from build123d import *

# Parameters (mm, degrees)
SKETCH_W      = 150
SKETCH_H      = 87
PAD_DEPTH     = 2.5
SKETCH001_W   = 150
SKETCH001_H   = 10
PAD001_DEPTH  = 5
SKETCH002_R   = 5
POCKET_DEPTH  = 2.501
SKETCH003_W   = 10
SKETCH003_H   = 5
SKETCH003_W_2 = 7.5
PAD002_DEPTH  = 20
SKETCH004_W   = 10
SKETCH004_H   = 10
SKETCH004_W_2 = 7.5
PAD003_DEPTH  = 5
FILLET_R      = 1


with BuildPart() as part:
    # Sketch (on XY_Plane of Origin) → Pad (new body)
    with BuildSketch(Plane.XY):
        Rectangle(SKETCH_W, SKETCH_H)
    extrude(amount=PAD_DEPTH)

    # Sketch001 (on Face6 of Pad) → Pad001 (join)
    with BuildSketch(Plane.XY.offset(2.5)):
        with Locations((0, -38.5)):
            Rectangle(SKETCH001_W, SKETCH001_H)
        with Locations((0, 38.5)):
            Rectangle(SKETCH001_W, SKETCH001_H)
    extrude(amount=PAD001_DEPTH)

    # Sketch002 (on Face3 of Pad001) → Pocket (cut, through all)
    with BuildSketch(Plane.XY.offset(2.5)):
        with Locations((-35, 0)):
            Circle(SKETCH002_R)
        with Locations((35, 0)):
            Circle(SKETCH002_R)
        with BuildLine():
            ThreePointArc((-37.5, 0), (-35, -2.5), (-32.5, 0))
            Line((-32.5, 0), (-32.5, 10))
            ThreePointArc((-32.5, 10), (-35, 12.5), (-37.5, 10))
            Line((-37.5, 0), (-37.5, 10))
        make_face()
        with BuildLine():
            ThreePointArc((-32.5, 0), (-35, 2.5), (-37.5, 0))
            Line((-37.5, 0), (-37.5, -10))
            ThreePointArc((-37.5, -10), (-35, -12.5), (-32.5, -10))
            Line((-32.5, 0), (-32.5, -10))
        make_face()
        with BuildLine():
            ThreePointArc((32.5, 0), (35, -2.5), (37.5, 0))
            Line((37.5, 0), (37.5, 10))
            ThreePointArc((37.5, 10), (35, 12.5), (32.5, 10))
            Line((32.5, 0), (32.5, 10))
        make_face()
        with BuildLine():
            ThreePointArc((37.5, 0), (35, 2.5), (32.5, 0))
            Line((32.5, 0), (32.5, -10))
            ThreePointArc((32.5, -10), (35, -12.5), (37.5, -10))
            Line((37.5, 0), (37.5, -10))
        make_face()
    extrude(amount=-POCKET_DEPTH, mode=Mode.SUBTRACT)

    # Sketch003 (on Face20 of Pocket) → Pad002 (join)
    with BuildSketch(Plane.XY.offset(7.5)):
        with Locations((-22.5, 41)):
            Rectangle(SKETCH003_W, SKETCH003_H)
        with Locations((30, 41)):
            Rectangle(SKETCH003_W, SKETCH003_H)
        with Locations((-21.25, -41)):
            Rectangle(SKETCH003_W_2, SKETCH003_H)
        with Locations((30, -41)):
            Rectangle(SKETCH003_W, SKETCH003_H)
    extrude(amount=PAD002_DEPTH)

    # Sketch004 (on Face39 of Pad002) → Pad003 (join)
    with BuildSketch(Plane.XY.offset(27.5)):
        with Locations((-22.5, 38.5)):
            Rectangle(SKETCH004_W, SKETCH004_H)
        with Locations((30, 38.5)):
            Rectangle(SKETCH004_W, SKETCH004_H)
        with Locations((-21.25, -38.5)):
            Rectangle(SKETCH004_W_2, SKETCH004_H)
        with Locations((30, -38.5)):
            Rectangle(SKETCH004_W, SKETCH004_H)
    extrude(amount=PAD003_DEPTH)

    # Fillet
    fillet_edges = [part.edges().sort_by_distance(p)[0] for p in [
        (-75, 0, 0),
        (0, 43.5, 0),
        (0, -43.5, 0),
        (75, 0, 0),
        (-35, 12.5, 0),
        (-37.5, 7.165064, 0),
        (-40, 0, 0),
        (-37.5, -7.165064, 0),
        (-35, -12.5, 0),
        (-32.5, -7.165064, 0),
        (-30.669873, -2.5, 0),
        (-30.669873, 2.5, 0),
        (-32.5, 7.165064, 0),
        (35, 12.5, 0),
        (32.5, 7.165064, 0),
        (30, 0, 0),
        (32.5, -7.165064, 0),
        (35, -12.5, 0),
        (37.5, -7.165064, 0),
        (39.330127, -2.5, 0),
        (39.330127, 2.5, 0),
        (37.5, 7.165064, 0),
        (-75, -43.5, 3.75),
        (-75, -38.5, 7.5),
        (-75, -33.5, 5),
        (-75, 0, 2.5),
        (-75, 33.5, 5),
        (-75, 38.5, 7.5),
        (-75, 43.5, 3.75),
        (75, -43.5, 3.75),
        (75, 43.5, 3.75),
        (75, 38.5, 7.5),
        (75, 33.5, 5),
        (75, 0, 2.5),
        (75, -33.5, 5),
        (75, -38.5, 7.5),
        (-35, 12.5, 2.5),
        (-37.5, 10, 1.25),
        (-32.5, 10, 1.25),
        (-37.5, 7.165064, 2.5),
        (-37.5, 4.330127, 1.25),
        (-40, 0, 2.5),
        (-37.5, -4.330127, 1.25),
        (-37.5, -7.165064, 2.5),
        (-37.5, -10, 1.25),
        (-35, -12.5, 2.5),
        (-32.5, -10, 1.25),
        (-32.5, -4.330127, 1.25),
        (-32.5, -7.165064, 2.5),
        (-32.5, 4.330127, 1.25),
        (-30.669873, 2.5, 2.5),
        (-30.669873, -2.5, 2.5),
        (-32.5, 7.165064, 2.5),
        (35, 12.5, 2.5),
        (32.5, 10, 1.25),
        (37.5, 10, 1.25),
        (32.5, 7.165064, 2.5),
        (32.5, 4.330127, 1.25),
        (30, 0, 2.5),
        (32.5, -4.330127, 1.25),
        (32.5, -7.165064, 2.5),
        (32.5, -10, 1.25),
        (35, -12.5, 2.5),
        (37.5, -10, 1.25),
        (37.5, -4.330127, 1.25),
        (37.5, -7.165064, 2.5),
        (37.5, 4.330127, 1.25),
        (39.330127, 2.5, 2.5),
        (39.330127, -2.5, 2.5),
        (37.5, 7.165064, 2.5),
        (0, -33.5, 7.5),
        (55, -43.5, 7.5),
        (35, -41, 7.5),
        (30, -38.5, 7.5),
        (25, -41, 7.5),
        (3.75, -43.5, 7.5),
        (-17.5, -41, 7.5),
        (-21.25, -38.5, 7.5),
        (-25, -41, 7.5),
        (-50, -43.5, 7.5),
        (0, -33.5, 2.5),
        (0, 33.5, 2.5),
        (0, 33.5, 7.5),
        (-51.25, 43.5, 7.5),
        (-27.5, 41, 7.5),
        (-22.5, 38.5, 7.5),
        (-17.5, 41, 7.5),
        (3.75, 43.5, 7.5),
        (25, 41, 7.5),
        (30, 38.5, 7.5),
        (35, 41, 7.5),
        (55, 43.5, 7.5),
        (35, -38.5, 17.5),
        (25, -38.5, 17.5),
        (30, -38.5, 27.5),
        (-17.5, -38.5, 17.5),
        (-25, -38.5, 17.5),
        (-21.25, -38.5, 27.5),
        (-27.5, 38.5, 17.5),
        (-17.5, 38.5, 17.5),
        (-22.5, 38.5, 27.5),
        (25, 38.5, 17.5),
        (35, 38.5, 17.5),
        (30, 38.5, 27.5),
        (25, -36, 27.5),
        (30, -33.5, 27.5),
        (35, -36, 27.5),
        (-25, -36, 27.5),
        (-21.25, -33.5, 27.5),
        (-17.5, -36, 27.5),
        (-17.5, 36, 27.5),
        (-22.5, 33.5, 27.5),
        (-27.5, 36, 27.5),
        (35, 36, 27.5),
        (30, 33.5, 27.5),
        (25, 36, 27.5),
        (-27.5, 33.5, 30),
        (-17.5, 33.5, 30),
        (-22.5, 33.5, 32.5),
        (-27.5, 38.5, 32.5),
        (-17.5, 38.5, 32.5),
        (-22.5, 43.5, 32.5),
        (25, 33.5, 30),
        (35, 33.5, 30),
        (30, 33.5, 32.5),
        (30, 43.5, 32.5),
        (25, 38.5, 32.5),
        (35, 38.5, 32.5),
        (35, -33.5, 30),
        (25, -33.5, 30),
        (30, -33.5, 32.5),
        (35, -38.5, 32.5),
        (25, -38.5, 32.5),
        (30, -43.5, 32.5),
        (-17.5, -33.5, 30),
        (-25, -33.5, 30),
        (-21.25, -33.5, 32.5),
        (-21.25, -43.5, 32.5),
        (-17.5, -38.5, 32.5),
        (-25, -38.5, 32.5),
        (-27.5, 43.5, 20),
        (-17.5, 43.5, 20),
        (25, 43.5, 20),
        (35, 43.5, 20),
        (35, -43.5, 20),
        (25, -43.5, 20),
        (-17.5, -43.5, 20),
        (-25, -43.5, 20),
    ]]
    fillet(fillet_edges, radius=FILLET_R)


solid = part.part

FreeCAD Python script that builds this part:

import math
import FreeCAD as App
import Part
import Sketcher
from FreeCAD import Vector
Q = App.Units.Quantity


def add_polygon(sketch, points):
    """Adds a closed chain of lines whose ends are joined by coincident constraints."""
    first, n = sketch.GeometryCount, len(points)
    for a, b in zip(points, points[1:] + points[:1]):
        sketch.addGeometry(Part.LineSegment(App.Vector(*a, 0), App.Vector(*b, 0)), False)
    for i in range(n):
        sketch.addConstraint(Sketcher.Constraint("Coincident", first + i, 2, first + (i + 1) % n, 1))

doc = App.newDocument("Part")
params = doc.addObject("Spreadsheet::Sheet", "Params")
for row, (alias, value) in enumerate([
    ("sketch1_width", "150 mm"),
    ("sketch1_height", "87 mm"),
    ("pad1_length", "2.5 mm"),
    ("sketch2_width", "150 mm"),
    ("sketch2_height", "10 mm"),
    ("pad2_length", "5 mm"),
    ("sketch3_radius", "5 mm"),
    ("sketch3_radius2", "2.5 mm"),
    ("sketch4_width", "10 mm"),
    ("sketch4_height", "5 mm"),
    ("sketch4_width2", "7.5 mm"),
    ("pad3_length", "20 mm"),
    ("sketch5_width", "10 mm"),
    ("sketch5_width2", "7.5 mm"),
    ("pad4_length", "5 mm"),
    ("fillet_radius", "1 mm"),
], start=1):
    params.set(f"A{row}", alias)
    params.set(f"B{row}", "=" + value)
    params.setAlias(f"B{row}", alias)

body = doc.addObject("PartDesign::Body", "Body")

# Sketch on XY plane
sketch1 = body.newObject("Sketcher::SketchObject", "Sketch")
sketch1.AttachmentSupport = (doc.getObject("XY_Plane"), [""])
sketch1.MapMode = "FlatFace"
add_polygon(sketch1, [(-75, 43.5), (-75, -43.5), (75, -43.5), (75, 43.5)])  # lines 0-3
sketch1.addConstraint([
    Sketcher.Constraint("Vertical", 0),
    Sketcher.Constraint("Horizontal", 1),
    Sketcher.Constraint("Vertical", 2),
    Sketcher.Constraint("Horizontal", 3),
    Sketcher.Constraint("Symmetric", 0, 2, 2, 2, -1, 1),
    Sketcher.Constraint("DistanceX", 1, 1, 1, 2, Q("150 mm")),
    Sketcher.Constraint("DistanceY", 0, 2, 0, 1, Q("87 mm")),
])
sketch1.setExpression("Constraints[9]", "Params.sketch1_width")
sketch1.setExpression("Constraints[10]", "Params.sketch1_height")
pad1 = body.newObject("PartDesign::Pad", "Pad")
pad1.Profile = sketch1
pad1.setExpression("Length", "Params.pad1_length")

# Sketch on XY plane
sketch2 = body.newObject("Sketcher::SketchObject", "Sketch001")
sketch2.AttachmentSupport = (doc.getObject("XY_Plane"), [""])
sketch2.MapMode = "FlatFace"
sketch2.AttachmentOffset = App.Placement(Vector(0, 0, 2.5), App.Rotation())
add_polygon(sketch2, [(-75, -33.5), (-75, -43.5), (75, -43.5), (75, -33.5)])  # lines 0-3
add_polygon(sketch2, [(-75, 43.5), (-75, 33.5), (75, 33.5), (75, 43.5)])  # lines 4-7
sketch2.addConstraint([
    Sketcher.Constraint("Vertical", 0),
    Sketcher.Constraint("Horizontal", 1),
    Sketcher.Constraint("Vertical", 2),
    Sketcher.Constraint("Horizontal", 3),
    Sketcher.Constraint("Vertical", 4),
    Sketcher.Constraint("Horizontal", 5),
    Sketcher.Constraint("Vertical", 6),
    Sketcher.Constraint("Horizontal", 7),
    Sketcher.Constraint("Symmetric", 2, 2, 4, 2, -1, 1),
    Sketcher.Constraint("Symmetric", 0, 2, 6, 2, -1, 1),
    Sketcher.Constraint("Vertical", 3, 2, 4, 2),
    Sketcher.Constraint("DistanceX", 1, 1, 1, 2, Q("150 mm")),
    Sketcher.Constraint("DistanceY", 0, 2, 0, 1, Q("10 mm")),
    Sketcher.Constraint("DistanceY", 3, 2, 4, 2, Q("67 mm")),
])
sketch2.setExpression("Constraints[19]", "Params.sketch2_width")
sketch2.setExpression("Constraints[20]", "Params.sketch2_height")
pad2 = body.newObject("PartDesign::Pad", "Pad001")
pad2.Profile = sketch2
pad2.setExpression("Length", "Params.pad2_length")

# Sketch on XY plane
sketch3 = body.newObject("Sketcher::SketchObject", "Sketch002")
sketch3.AttachmentSupport = (doc.getObject("XY_Plane"), [""])
sketch3.MapMode = "FlatFace"
sketch3.AttachmentOffset = App.Placement(Vector(0, 0, 2.5), App.Rotation())
sketch3.addGeometry([
    Part.LineSegment(Vector(-37.5, 10, 0), Vector(-37.5, 4.330127, 0)),  # 0
    Part.ArcOfCircle(Part.Circle(Vector(-35, 0, 0), Vector(0, 0, 1), 5), math.radians(120), math.radians(240)),  # 1
    Part.LineSegment(Vector(-37.5, -4.330127, 0), Vector(-37.5, -10, 0)),  # 2
    Part.ArcOfCircle(Part.Circle(Vector(-35, -10, 0), Vector(0, 0, 1), 2.5), math.radians(180), math.radians(360)),  # 3
    Part.LineSegment(Vector(-32.5, -10, 0), Vector(-32.5, -4.330127, 0)),  # 4
    Part.ArcOfCircle(Part.Circle(Vector(-35, 0, 0), Vector(0, 0, 1), 5), math.radians(-60), math.radians(60)),  # 5
    Part.LineSegment(Vector(-32.5, 4.330127, 0), Vector(-32.5, 10, 0)),  # 6
    Part.ArcOfCircle(Part.Circle(Vector(-35, 10, 0), Vector(0, 0, 1), 2.5), math.radians(0), math.radians(180)),  # 7
    Part.LineSegment(Vector(32.5, 10, 0), Vector(32.5, 4.330127, 0)),  # 8
    Part.ArcOfCircle(Part.Circle(Vector(35, 0, 0), Vector(0, 0, 1), 5), math.radians(120), math.radians(240)),  # 9
    Part.LineSegment(Vector(32.5, -4.330127, 0), Vector(32.5, -10, 0)),  # 10
    Part.ArcOfCircle(Part.Circle(Vector(35, -10, 0), Vector(0, 0, 1), 2.5), math.radians(180), math.radians(360)),  # 11
    Part.LineSegment(Vector(37.5, -10, 0), Vector(37.5, -4.330127, 0)),  # 12
    Part.ArcOfCircle(Part.Circle(Vector(35, 0, 0), Vector(0, 0, 1), 5), math.radians(-60), math.radians(60)),  # 13
    Part.LineSegment(Vector(37.5, 4.330127, 0), Vector(37.5, 10, 0)),  # 14
    Part.ArcOfCircle(Part.Circle(Vector(35, 10, 0), Vector(0, 0, 1), 2.5), math.radians(0), math.radians(180)),  # 15
], False)
sketch3.addConstraint([
    Sketcher.Constraint("Coincident", 0, 2, 1, 1),
    Sketcher.Constraint("Coincident", 1, 2, 2, 1),
    Sketcher.Constraint("Tangent", 2, 2, 3, 1),
    Sketcher.Constraint("Tangent", 3, 2, 4, 1),
    Sketcher.Constraint("Coincident", 4, 2, 5, 1),
    Sketcher.Constraint("Coincident", 5, 2, 6, 1),
    Sketcher.Constraint("Tangent", 6, 2, 7, 1),
    Sketcher.Constraint("Tangent", 7, 2, 0, 1),
    Sketcher.Constraint("Coincident", 8, 2, 9, 1),
    Sketcher.Constraint("Coincident", 9, 2, 10, 1),
    Sketcher.Constraint("Tangent", 10, 2, 11, 1),
    Sketcher.Constraint("Tangent", 11, 2, 12, 1),
    Sketcher.Constraint("Coincident", 12, 2, 13, 1),
    Sketcher.Constraint("Coincident", 13, 2, 14, 1),
    Sketcher.Constraint("Tangent", 14, 2, 15, 1),
    Sketcher.Constraint("Tangent", 15, 2, 8, 1),
    Sketcher.Constraint("Vertical", 0),
    Sketcher.Constraint("Vertical", 2),
    Sketcher.Constraint("Vertical", 4),
    Sketcher.Constraint("Vertical", 6),
    Sketcher.Constraint("Vertical", 8),
    Sketcher.Constraint("Vertical", 10),
    Sketcher.Constraint("Vertical", 12),
    Sketcher.Constraint("Vertical", 14),
    Sketcher.Constraint("Coincident", 5, 3, 1, 3),
    Sketcher.Constraint("Coincident", 13, 3, 9, 3),
    Sketcher.Constraint("Equal", 1, 5),
    Sketcher.Constraint("Equal", 3, 7),
    Sketcher.Constraint("Equal", 5, 9),
    Sketcher.Constraint("Equal", 7, 11),
    Sketcher.Constraint("Equal", 9, 13),
    Sketcher.Constraint("Equal", 11, 15),
    Sketcher.Constraint("Symmetric", 1, 3, 9, 3, -1, 1),
    Sketcher.Constraint("Symmetric", 7, 3, 11, 3, -1, 1),
    Sketcher.Constraint("Symmetric", 3, 3, 15, 3, -1, 1),
    Sketcher.Constraint("Symmetric", 3, 3, 11, 3, -2),
    Sketcher.Constraint("PointOnObject", 1, 3, -1),
    Sketcher.Constraint("Horizontal", 1, 2, 4, 2),
    Sketcher.Constraint("Radius", 1, Q("5 mm")),
    Sketcher.Constraint("Radius", 3, Q("2.5 mm")),
    Sketcher.Constraint("DistanceX", 1, 3, -1, 1, Q("35 mm")),
    Sketcher.Constraint("DistanceY", 3, 3, -1, 1, Q("10 mm")),
])
sketch3.setExpression("Constraints[38]", "Params.sketch3_radius")
sketch3.setExpression("Constraints[39]", "Params.sketch3_radius2")
pocket1 = body.newObject("PartDesign::Pocket", "Pocket")
pocket1.Profile = sketch3
pocket1.Type = "ThroughAll"

# Sketch on XY plane
sketch4 = body.newObject("Sketcher::SketchObject", "Sketch003")
sketch4.AttachmentSupport = (doc.getObject("XY_Plane"), [""])
sketch4.MapMode = "FlatFace"
sketch4.AttachmentOffset = App.Placement(Vector(0, 0, 7.5), App.Rotation())
add_polygon(sketch4, [(-27.5, 43.5), (-27.5, 38.5), (-17.5, 38.5), (-17.5, 43.5)])  # lines 0-3
add_polygon(sketch4, [(25, 43.5), (25, 38.5), (35, 38.5), (35, 43.5)])  # lines 4-7
add_polygon(sketch4, [(-25, -38.5), (-25, -43.5), (-17.5, -43.5), (-17.5, -38.5)])  # lines 8-11
add_polygon(sketch4, [(25, -38.5), (25, -43.5), (35, -43.5), (35, -38.5)])  # lines 12-15
sketch4.addConstraint([
    Sketcher.Constraint("Vertical", 0),
    Sketcher.Constraint("Horizontal", 1),
    Sketcher.Constraint("Vertical", 2),
    Sketcher.Constraint("Horizontal", 3),
    Sketcher.Constraint("Vertical", 4),
    Sketcher.Constraint("Horizontal", 5),
    Sketcher.Constraint("Vertical", 6),
    Sketcher.Constraint("Horizontal", 7),
    Sketcher.Constraint("Vertical", 8),
    Sketcher.Constraint("Horizontal", 9),
    Sketcher.Constraint("Vertical", 10),
    Sketcher.Constraint("Horizontal", 11),
    Sketcher.Constraint("Vertical", 12),
    Sketcher.Constraint("Horizontal", 13),
    Sketcher.Constraint("Vertical", 14),
    Sketcher.Constraint("Horizontal", 15),
    Sketcher.Constraint("Symmetric", 7, 2, 8, 2, -1, 1),
    Sketcher.Constraint("Symmetric", 8, 2, 12, 2, -2),
    Sketcher.Constraint("Symmetric", 2, 2, 9, 2, -1),
    Sketcher.Constraint("Symmetric", 5, 2, 14, 2, -1),
    Sketcher.Constraint("Horizontal", 1, 2, 4, 2),
    Sketcher.Constraint("Horizontal", 11, 2, 14, 2),
    Sketcher.Constraint("Equal", 3, 5),
    Sketcher.Constraint("DistanceX", 1, 1, 1, 2, Q("10 mm")),
    Sketcher.Constraint("DistanceY", 0, 2, 0, 1, Q("5 mm")),
    Sketcher.Constraint("DistanceX", 9, 1, 9, 2, Q("7.5 mm")),
    Sketcher.Constraint("DistanceX", -1, 1, 4, 2, Q("25 mm")),
    Sketcher.Constraint("DistanceY", 8, 2, 0, 2, Q("82 mm")),
])
sketch4.setExpression("Constraints[39]", "Params.sketch4_width")
sketch4.setExpression("Constraints[40]", "Params.sketch4_height")
sketch4.setExpression("Constraints[41]", "Params.sketch4_width2")
pad3 = body.newObject("PartDesign::Pad", "Pad002")
pad3.Profile = sketch4
pad3.setExpression("Length", "Params.pad3_length")

# Sketch on XY plane
sketch5 = body.newObject("Sketcher::SketchObject", "Sketch004")
sketch5.AttachmentSupport = (doc.getObject("XY_Plane"), [""])
sketch5.MapMode = "FlatFace"
sketch5.AttachmentOffset = App.Placement(Vector(0, 0, 27.5), App.Rotation())
add_polygon(sketch5, [(-27.5, 43.5), (-27.5, 33.5), (-17.5, 33.5), (-17.5, 43.5)])  # lines 0-3
add_polygon(sketch5, [(25, 43.5), (25, 33.5), (35, 33.5), (35, 43.5)])  # lines 4-7
add_polygon(sketch5, [(-25, -33.5), (-25, -43.5), (-17.5, -43.5), (-17.5, -33.5)])  # lines 8-11
add_polygon(sketch5, [(25, -33.5), (25, -43.5), (35, -43.5), (35, -33.5)])  # lines 12-15
sketch5.addConstraint([
    Sketcher.Constraint("Vertical", 0),
    Sketcher.Constraint("Horizontal", 1),
    Sketcher.Constraint("Vertical", 2),
    Sketcher.Constraint("Horizontal", 3),
    Sketcher.Constraint("Vertical", 4),
    Sketcher.Constraint("Horizontal", 5),
    Sketcher.Constraint("Vertical", 6),
    Sketcher.Constraint("Horizontal", 7),
    Sketcher.Constraint("Vertical", 8),
    Sketcher.Constraint("Horizontal", 9),
    Sketcher.Constraint("Vertical", 10),
    Sketcher.Constraint("Horizontal", 11),
    Sketcher.Constraint("Vertical", 12),
    Sketcher.Constraint("Horizontal", 13),
    Sketcher.Constraint("Vertical", 14),
    Sketcher.Constraint("Horizontal", 15),
    Sketcher.Constraint("Symmetric", 7, 2, 8, 2, -1, 1),
    Sketcher.Constraint("Symmetric", 8, 2, 12, 2, -2),
    Sketcher.Constraint("Symmetric", 2, 2, 9, 2, -1),
    Sketcher.Constraint("Symmetric", 5, 2, 14, 2, -1),
    Sketcher.Constraint("Horizontal", 1, 2, 4, 2),
    Sketcher.Constraint("Horizontal", 11, 2, 14, 2),
    Sketcher.Constraint("Equal", 3, 5),
    Sketcher.Constraint("Equal", 15, 0),
    Sketcher.Constraint("DistanceX", 1, 1, 1, 2, Q("10 mm")),
    Sketcher.Constraint("DistanceX", 9, 1, 9, 2, Q("7.5 mm")),
    Sketcher.Constraint("DistanceX", -1, 1, 4, 2, Q("25 mm")),
    Sketcher.Constraint("DistanceY", 8, 2, 0, 2, Q("77 mm")),
])
sketch5.setExpression("Constraints[40]", "Params.sketch5_width")
sketch5.setExpression("Constraints[41]", "Params.sketch5_width2")
pad4 = body.newObject("PartDesign::Pad", "Pad003")
pad4.Profile = sketch5
pad4.setExpression("Length", "Params.pad4_length")
doc.recompute()

fillet = body.newObject("PartDesign::Fillet", "Fillet")
fillet.Base = (pad4, ["Edge1"])
fillet.UseAllEdges = True
fillet.setExpression("Radius", "Params.fillet_radius")

doc.recompute()
